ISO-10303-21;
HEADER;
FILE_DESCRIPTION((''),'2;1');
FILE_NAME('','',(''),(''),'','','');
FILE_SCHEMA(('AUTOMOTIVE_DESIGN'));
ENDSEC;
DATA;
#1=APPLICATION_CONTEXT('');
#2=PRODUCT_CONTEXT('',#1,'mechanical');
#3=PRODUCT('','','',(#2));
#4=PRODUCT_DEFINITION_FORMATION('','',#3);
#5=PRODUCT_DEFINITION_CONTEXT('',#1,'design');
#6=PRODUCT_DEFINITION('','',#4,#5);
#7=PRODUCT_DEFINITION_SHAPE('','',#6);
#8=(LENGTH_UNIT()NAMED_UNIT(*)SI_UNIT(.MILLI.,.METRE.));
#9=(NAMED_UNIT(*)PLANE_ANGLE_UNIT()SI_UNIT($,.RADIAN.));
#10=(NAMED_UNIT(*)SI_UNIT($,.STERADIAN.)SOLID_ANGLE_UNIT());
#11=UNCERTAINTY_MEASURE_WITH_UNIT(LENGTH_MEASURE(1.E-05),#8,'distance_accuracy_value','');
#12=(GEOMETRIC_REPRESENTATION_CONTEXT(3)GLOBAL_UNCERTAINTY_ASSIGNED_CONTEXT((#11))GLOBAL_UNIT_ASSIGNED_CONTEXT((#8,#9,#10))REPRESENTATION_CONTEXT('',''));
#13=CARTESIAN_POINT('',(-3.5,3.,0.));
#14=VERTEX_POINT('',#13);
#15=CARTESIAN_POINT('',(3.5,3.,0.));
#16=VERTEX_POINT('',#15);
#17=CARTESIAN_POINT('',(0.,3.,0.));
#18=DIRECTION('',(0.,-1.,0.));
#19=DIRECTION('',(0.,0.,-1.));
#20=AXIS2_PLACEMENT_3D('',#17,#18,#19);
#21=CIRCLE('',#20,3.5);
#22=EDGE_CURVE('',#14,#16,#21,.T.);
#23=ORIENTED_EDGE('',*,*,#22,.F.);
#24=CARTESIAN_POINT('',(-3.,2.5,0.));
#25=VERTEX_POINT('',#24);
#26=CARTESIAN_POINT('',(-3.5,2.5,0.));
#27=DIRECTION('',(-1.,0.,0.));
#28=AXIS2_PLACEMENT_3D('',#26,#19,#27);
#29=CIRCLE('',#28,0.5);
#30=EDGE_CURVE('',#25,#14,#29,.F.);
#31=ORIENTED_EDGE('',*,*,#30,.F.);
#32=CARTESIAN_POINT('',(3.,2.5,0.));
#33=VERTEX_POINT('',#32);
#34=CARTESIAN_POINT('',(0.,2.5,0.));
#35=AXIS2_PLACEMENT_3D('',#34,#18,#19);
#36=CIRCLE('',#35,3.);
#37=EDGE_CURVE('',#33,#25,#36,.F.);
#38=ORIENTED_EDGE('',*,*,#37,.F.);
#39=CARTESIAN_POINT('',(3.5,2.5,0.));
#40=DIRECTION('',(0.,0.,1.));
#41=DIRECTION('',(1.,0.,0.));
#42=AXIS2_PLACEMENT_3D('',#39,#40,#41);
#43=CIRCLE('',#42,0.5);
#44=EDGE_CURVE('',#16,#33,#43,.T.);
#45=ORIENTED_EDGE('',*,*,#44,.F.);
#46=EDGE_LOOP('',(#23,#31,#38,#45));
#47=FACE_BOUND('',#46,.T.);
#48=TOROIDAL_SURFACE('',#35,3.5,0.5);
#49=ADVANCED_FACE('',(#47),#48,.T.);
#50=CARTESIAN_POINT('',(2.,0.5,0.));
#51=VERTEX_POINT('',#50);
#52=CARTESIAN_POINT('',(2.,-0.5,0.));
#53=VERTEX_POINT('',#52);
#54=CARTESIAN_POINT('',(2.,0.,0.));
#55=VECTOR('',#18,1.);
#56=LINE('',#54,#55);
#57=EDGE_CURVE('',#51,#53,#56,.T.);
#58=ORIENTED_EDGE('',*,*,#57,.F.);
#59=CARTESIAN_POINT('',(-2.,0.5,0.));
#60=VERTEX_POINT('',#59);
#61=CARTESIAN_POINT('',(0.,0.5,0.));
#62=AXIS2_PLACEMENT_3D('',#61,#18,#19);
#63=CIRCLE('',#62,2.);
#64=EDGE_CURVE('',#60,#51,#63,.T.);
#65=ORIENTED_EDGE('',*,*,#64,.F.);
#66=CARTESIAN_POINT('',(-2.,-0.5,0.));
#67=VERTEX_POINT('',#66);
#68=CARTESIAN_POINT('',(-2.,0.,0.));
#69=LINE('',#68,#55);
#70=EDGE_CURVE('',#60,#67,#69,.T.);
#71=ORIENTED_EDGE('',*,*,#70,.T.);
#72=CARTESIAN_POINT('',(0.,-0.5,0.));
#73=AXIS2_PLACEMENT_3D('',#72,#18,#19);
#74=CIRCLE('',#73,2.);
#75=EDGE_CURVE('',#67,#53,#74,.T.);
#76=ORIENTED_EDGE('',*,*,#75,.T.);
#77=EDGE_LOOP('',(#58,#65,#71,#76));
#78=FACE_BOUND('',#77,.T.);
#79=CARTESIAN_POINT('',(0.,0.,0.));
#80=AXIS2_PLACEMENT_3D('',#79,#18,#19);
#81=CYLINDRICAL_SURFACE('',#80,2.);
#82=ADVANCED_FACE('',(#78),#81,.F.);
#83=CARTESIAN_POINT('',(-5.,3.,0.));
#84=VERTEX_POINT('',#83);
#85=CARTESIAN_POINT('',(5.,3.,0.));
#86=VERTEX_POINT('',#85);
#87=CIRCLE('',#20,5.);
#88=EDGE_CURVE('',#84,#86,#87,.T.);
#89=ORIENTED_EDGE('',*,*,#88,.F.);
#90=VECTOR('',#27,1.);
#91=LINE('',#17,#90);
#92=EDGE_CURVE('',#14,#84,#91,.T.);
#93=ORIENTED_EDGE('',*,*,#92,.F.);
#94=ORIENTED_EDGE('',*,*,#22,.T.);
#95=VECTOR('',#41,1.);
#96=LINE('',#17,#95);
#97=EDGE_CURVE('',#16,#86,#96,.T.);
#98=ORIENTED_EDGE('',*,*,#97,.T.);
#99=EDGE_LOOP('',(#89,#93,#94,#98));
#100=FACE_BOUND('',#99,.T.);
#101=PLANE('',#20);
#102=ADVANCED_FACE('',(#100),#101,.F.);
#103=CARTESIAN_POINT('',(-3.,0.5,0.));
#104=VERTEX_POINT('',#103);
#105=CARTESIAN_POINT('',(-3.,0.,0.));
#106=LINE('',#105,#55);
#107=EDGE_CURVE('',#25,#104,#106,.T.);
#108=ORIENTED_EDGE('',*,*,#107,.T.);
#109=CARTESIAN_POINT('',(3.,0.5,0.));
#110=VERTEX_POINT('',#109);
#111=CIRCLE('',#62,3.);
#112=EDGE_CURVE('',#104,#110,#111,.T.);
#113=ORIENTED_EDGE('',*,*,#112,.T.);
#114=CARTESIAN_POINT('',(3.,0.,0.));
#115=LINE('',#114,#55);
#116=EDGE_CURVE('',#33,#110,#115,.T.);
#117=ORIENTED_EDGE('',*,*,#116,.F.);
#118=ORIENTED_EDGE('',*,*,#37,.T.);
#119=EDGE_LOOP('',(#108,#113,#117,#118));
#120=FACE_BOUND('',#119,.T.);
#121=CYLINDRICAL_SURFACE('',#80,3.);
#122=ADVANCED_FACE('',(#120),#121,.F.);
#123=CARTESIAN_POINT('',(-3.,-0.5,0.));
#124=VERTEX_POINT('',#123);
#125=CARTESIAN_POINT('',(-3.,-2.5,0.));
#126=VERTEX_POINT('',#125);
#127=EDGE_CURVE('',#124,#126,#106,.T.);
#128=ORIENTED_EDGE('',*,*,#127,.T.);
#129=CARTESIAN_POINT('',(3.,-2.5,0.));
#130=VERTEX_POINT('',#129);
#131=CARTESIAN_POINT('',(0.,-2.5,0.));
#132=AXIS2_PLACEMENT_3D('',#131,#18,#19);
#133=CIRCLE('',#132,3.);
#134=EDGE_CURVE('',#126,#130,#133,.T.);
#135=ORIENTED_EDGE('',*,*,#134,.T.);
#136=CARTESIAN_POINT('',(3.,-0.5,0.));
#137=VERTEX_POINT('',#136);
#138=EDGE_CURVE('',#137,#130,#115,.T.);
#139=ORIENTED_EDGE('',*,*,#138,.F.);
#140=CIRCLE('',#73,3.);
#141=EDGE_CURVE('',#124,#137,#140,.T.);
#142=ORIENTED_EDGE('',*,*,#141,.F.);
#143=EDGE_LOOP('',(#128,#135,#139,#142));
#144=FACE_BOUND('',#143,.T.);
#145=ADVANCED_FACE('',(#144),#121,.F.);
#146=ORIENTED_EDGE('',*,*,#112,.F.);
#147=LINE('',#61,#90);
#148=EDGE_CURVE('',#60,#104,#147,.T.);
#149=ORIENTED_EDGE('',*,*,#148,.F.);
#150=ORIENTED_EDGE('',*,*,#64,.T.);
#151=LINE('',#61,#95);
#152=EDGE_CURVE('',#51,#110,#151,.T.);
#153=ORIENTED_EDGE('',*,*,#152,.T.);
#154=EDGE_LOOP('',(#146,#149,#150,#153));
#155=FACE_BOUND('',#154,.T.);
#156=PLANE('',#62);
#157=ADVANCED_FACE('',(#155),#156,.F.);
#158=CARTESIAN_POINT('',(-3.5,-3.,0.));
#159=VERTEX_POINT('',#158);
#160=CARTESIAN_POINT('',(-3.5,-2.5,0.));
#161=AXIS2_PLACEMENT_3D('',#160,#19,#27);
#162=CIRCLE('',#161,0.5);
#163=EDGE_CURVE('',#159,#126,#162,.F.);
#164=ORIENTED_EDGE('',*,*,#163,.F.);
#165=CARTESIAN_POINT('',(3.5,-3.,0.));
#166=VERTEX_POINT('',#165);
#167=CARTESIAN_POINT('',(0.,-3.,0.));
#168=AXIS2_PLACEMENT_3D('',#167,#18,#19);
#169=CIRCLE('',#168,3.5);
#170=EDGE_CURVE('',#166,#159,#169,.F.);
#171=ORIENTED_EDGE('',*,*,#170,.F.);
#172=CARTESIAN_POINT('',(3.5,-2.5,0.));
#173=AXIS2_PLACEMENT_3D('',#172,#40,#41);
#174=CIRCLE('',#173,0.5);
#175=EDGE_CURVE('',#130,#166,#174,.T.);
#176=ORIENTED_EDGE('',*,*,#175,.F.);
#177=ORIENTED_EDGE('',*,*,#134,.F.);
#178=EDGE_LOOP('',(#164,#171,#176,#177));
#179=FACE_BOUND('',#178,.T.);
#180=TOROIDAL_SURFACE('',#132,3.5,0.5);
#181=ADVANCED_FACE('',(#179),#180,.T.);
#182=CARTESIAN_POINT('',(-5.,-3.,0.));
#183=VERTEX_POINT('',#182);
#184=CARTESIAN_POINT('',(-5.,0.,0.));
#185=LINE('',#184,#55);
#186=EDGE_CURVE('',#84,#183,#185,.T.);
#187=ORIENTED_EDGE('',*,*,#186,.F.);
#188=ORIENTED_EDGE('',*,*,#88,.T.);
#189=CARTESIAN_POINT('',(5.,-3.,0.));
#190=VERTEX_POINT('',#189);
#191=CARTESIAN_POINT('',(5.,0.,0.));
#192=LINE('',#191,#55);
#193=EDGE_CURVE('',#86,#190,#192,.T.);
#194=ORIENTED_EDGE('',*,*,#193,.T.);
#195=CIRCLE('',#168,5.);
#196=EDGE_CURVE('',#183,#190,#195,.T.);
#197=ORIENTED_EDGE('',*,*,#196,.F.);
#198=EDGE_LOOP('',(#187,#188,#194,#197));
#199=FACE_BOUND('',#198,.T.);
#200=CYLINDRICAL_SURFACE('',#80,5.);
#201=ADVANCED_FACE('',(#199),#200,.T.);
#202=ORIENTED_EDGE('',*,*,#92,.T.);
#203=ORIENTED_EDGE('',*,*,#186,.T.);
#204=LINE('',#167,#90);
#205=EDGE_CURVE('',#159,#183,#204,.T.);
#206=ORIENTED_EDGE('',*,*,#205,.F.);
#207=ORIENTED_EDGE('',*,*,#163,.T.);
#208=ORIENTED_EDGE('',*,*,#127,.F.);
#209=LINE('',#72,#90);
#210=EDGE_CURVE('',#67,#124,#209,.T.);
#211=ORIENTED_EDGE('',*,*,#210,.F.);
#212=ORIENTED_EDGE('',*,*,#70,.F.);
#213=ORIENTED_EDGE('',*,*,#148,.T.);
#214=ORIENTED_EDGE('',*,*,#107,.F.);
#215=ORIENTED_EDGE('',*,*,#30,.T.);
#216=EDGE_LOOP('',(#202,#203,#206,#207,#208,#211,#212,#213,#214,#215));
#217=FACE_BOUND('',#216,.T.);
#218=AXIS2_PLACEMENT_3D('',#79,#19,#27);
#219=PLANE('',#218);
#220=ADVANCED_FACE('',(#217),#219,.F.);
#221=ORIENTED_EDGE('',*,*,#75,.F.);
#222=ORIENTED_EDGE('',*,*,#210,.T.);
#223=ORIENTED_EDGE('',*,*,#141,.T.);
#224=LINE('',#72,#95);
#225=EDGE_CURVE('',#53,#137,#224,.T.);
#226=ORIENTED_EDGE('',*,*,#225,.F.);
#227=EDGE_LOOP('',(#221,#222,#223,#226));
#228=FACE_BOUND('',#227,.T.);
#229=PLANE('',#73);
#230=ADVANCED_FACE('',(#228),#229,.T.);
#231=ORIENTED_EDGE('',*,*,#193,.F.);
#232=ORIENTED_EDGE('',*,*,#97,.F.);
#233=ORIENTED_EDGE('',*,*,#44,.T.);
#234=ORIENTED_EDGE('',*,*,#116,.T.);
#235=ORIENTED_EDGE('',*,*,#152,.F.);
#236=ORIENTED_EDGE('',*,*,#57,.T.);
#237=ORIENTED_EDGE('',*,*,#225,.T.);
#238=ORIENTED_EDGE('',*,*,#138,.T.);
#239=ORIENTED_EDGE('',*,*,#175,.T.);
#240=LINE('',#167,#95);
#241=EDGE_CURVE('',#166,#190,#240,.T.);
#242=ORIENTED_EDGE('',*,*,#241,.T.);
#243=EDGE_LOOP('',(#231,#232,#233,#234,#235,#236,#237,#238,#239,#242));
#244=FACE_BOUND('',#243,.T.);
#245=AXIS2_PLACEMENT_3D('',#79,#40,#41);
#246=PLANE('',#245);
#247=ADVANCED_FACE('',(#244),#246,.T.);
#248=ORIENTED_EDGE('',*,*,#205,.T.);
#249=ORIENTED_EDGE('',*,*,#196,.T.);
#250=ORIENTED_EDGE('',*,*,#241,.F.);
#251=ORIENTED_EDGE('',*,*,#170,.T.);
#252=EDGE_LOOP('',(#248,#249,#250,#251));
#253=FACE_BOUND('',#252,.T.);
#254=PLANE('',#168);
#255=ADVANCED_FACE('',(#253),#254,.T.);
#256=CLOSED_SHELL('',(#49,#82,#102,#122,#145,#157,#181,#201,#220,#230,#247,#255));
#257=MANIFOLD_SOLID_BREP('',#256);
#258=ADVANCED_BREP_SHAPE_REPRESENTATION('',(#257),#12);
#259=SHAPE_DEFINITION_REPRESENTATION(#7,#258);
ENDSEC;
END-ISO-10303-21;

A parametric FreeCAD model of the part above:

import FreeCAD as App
import Part
import Sketcher


def edges_at(feature, points):
    """Names of the edges that pass closest to the given points."""
    edges = feature.Shape.Edges
    near = lambda p: min(range(len(edges)), key=lambda i: edges[i].distToShape(Part.Vertex(*p))[0])
    return sorted({f"Edge{near(p) + 1}" for p in points})


def add_polygon(sketch, points):
    """Adds a closed chain of lines whose ends are joined by coincident constraints."""
    first, n = sketch.GeometryCount, len(points)
    for a, b in zip(points, points[1:] + points[:1]):
        sketch.addGeometry(Part.LineSegment(App.Vector(*a, 0), App.Vector(*b, 0)), False)
    for i in range(n):
        sketch.addConstraint(Sketcher.Constraint("Coincident", first + i, 2, first + (i + 1) % n, 1))

doc = App.newDocument("Part")
params = doc.addObject("Spreadsheet::Sheet", "Params")
for row, (alias, value) in enumerate([
    ("sketch1_width", "1 mm"),
    ("sketch1_width2", "2 mm"),
    ("sketch1_height", "6 mm"),
    ("revolution_angle", "180 deg"),
    ("fillet_radius", "0.5 mm"),
], start=1):
    params.set(f"A{row}", alias)
    params.set(f"B{row}", "=" + value)
    params.setAlias(f"B{row}", alias)

body = doc.addObject("PartDesign::Body", "Body")

sketch1 = body.newObject("Sketcher::SketchObject", "Sketch")
sketch1.AttachmentSupport = (doc.getObject("XY_Plane"), [""])
sketch1.MapMode = "FlatFace"
add_polygon(sketch1, [(2, 0.5), (2, -0.5), (3, -0.5), (3, -3), (5, -3), (5, 3), (3, 3), (3, 0.5)])
sketch1.addConstraint(Sketcher.Constraint("Vertical", 0))
sketch1.addConstraint(Sketcher.Constraint("Horizontal", 1))
sketch1.addConstraint(Sketcher.Constraint("Vertical", 2))
sketch1.addConstraint(Sketcher.Constraint("Horizontal", 3))
sketch1.addConstraint(Sketcher.Constraint("Vertical", 4))
sketch1.addConstraint(Sketcher.Constraint("Horizontal", 5))
sketch1.addConstraint(Sketcher.Constraint("Vertical", 6))
sketch1.addConstraint(Sketcher.Constraint("Horizontal", 7))
sketch1.addConstraint(Sketcher.Constraint("Symmetric", 2, 2, 5, 2, -1))
sketch1.addConstraint(Sketcher.Constraint("Equal", 7, 0))
sketch1.addConstraint(Sketcher.Constraint("Equal", 2, 6))
sketch1.addConstraint(Sketcher.Constraint("DistanceX", 1, 1, 1, 2, 1.0))
sketch1.addConstraint(Sketcher.Constraint("DistanceX", 3, 1, 3, 2, 2.0))
sketch1.addConstraint(Sketcher.Constraint("DistanceY", 4, 1, 4, 2, 6.0))
sketch1.addConstraint(Sketcher.Constraint("DistanceX", -1, 1, 0, 2, 2.0))
sketch1.setExpression("Constraints[19]", "Params.sketch1_width")
sketch1.setExpression("Constraints[20]", "Params.sketch1_width2")
sketch1.setExpression("Constraints[21]", "Params.sketch1_height")
revolution = body.newObject("PartDesign::Revolution", "Revolution")
revolution.Profile = sketch1
revolution.ReferenceAxis = (sketch1, ["V_Axis"])
revolution.setExpression("Angle", "Params.revolution_angle")
doc.recompute()

fillet = body.newObject("PartDesign::Fillet", "Fillet")
fillet.Base = (revolution, edges_at(revolution, [(0, 3, -3), (0, -3, -3)]))
fillet.setExpression("Radius", "Params.fillet_radius")

doc.recompute()
